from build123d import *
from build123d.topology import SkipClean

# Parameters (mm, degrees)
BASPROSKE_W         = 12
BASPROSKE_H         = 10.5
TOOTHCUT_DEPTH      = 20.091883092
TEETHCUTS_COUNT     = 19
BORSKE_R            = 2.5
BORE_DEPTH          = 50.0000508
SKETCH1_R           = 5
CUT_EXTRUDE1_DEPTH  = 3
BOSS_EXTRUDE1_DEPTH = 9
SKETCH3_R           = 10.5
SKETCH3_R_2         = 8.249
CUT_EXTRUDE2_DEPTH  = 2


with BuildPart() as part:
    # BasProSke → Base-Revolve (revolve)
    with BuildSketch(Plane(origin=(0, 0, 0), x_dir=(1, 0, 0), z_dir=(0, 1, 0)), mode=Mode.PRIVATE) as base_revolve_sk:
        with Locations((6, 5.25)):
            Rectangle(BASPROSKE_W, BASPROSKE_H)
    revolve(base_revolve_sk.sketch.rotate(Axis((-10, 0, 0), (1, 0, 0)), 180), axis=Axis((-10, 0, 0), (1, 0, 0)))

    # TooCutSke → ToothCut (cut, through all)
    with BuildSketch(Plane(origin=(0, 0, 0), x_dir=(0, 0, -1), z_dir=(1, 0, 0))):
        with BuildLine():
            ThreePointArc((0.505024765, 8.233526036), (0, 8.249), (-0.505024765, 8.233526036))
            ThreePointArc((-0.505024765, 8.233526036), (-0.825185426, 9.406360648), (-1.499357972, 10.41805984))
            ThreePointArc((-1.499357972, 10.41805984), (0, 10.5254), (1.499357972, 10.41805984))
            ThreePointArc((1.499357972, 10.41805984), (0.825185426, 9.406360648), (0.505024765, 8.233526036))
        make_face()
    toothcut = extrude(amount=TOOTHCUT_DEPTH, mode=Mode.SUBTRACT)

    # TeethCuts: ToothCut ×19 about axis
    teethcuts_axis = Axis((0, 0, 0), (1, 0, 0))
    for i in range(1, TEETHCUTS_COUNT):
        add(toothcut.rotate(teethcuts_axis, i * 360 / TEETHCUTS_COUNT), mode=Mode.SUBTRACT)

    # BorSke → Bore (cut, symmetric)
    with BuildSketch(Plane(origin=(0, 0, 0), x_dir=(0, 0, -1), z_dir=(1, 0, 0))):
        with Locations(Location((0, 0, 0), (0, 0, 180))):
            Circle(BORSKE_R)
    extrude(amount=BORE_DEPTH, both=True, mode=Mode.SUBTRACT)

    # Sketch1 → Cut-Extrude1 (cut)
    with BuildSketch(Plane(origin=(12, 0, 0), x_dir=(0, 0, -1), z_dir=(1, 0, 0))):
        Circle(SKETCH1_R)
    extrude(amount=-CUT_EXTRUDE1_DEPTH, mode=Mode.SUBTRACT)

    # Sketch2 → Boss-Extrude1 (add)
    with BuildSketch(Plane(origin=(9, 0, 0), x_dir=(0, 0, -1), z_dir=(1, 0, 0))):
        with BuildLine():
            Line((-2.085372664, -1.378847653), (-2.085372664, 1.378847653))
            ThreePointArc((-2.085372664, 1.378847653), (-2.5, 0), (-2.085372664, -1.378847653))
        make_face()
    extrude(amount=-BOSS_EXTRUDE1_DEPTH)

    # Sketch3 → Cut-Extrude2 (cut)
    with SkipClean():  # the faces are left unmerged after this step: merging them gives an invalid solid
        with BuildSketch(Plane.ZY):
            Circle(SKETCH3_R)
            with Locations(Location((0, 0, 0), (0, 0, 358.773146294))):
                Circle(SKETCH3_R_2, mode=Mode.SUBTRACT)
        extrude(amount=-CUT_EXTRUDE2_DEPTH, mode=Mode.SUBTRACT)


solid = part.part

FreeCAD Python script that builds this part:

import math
import FreeCAD as App
import Part
import Sketcher


def add_polygon(sketch, points):
    """Adds a closed chain of lines whose ends are joined by coincident constraints."""
    first, n = sketch.GeometryCount, len(points)
    for a, b in zip(points, points[1:] + points[:1]):
        sketch.addGeometry(Part.LineSegment(App.Vector(*a, 0), App.Vector(*b, 0)), False)
    for i in range(n):
        sketch.addConstraint(Sketcher.Constraint("Coincident", first + i, 2, first + (i + 1) % n, 1))

doc = App.newDocument("Part")
body = doc.addObject("PartDesign::Body", "Body")

# Sketch on XZ plane
sketch1 = body.newObject("Sketcher::SketchObject", "Sketch")
sketch1.AttachmentSupport = (doc.getObject("XZ_Plane"), [""])
sketch1.MapMode = "FlatFace"
add_polygon(sketch1, [(0, -10), (0, 0), (12, 0), (12, -10)])  # lines 0-3
sketch1.addConstraint([
    Sketcher.Constraint("Vertical", 0),
    Sketcher.Constraint("Horizontal", 1),
    Sketcher.Constraint("Vertical", 2),
    Sketcher.Constraint("Horizontal", 3),
    Sketcher.Constraint("Coincident", 0, 2, -1, 1),
    Sketcher.Constraint("DistanceX", 1, 1, 1, 2, 12.0),
    Sketcher.Constraint("DistanceY", 0, 1, 0, 2, 10.5),
])
revolution = body.newObject("PartDesign::Revolution", "Revolution")
revolution.Profile = sketch1
revolution.ReferenceAxis = (sketch1, ["H_Axis"])
revolution.Angle = 360

# Sketch on YZ plane
sketch2 = body.newObject("Sketcher::SketchObject", "Sketch001")
sketch2.AttachmentSupport = (doc.getObject("YZ_Plane"), [""])
sketch2.MapMode = "FlatFace"
sketch2.addGeometry([
    Part.ArcOfCircle(Part.Circle(App.Vector(0, 0, 0), App.Vector(0, 0, 1), 8.2), math.radians(-3.51), math.radians(3.51)),
    Part.ArcOfCircle(Part.Circle(App.Vector(7.8, -4.3, 0), App.Vector(0, 0, 1), 3.8), math.radians(47), math.radians(84)),
    Part.ArcOfCircle(Part.Circle(App.Vector(0, 0, 0), App.Vector(0, 0, 1), 10.5), math.radians(-8.19), math.radians(8.19)),
    Part.ArcOfCircle(Part.Circle(App.Vector(7.8, 4.3, 0), App.Vector(0, 0, 1), 3.8), math.radians(-84), math.radians(-47)),
], False)
sketch2.addConstraint([
    Sketcher.Constraint("Coincident", 0, 1, 1, 2),
    Sketcher.Constraint("Coincident", 1, 1, 2, 1),
    Sketcher.Constraint("Coincident", 2, 2, 3, 2),
    Sketcher.Constraint("Coincident", 3, 1, 0, 2),
    Sketcher.Constraint("Coincident", 0, 3, -1, 1),
    Sketcher.Constraint("Coincident", 2, 3, -1, 1),
    Sketcher.Constraint("Equal", 1, 3),
    Sketcher.Constraint("Symmetric", 1, 3, 3, 3, -1),
    Sketcher.Constraint("Radius", 1, 3.8),
    Sketcher.Constraint("Radius", 0, 8.249),
    Sketcher.Constraint("Radius", 2, 10.5254),
    Sketcher.Constraint("DistanceX", -1, 1, 1, 3, 7.832121),
    Sketcher.Constraint("DistanceX", -1, 1, 1, 1, 10.41806),
])
pocket1 = body.newObject("PartDesign::Pocket", "Pocket")
pocket1.Profile = sketch2
pocket1.Type = "ThroughAll"
pocket1.Reversed = True
doc.recompute()

polarpattern = body.newObject("PartDesign::PolarPattern", "PolarPattern")
polarpattern.Originals = [pocket1]
polarpattern.Axis = (doc.getObject("X_Axis"), [""])
polarpattern.Angle = 360
polarpattern.Occurrences = 19
body.Tip = polarpattern

# Sketch on YZ plane
sketch3 = body.newObject("Sketcher::SketchObject", "Sketch002")
sketch3.AttachmentSupport = (doc.getObject("YZ_Plane"), [""])
sketch3.MapMode = "FlatFace"
sketch3.addGeometry(Part.Circle(App.Vector(0, 0, 0), App.Vector(0, 0, 1), 2.5), False)
sketch3.addConstraint([
    Sketcher.Constraint("Coincident", 0, 3, -1, 1),
    Sketcher.Constraint("Diameter", 0, 5.0),
])
pocket2 = body.newObject("PartDesign::Pocket", "Pocket001")
pocket2.Profile = sketch3
pocket2.Length = 100.000102
pocket2.Midplane = True

# Sketch on YZ plane
sketch4 = body.newObject("Sketcher::SketchObject", "Sketch003")
sketch4.AttachmentSupport = (doc.getObject("YZ_Plane"), [""])
sketch4.MapMode = "FlatFace"
sketch4.AttachmentOffset = App.Placement(App.Vector(0, 0, 12), App.Rotation())
sketch4.addGeometry(Part.Circle(App.Vector(0, 0, 0), App.Vector(0, 0, 1), 5), False)
sketch4.addConstraint([
    Sketcher.Constraint("Coincident", 0, 3, -1, 1),
    Sketcher.Constraint("Diameter", 0, 10.0),
])
pocket3 = body.newObject("PartDesign::Pocket", "Pocket002")
pocket3.Profile = sketch4
pocket3.Length = 3

# Sketch on YZ plane
sketch5 = body.newObject("Sketcher::SketchObject", "Sketch004")
sketch5.AttachmentSupport = (doc.getObject("YZ_Plane"), [""])
sketch5.MapMode = "FlatFace"
sketch5.AttachmentOffset = App.Placement(App.Vector(0, 0, 9), App.Rotation())
sketch5.addGeometry([
    Part.LineSegment(App.Vector(-1.4, 2.1, 0), App.Vector(1.4, 2.1, 0)),
    Part.ArcOfCircle(Part.Circle(App.Vector(0, 0, 0), App.Vector(0, 0, 1), 2.5), math.radians(57), math.radians(123)),
], False)
sketch5.addConstraint([
    Sketcher.Constraint("Coincident", 0, 1, 1, 2),
    Sketcher.Constraint("Coincident", 1, 1, 0, 2),
    Sketcher.Constraint("Horizontal", 0),
    Sketcher.Constraint("Coincident", 1, 3, -1, 1),
    Sketcher.Constraint("Radius", 1, 2.5),
    Sketcher.Constraint("DistanceX", 0, 1, 0, 2, 2.757695),
])
pad1 = body.newObject("PartDesign::Pad", "Pad")
pad1.Profile = sketch5
pad1.Length = 9
pad1.Reversed = True

# Sketch on YZ plane
sketch6 = body.newObject("Sketcher::SketchObject", "Sketch005")
sketch6.AttachmentSupport = (doc.getObject("YZ_Plane"), [""])
sketch6.MapMode = "FlatFace"
sketch6.addGeometry([
    Part.Circle(App.Vector(0, 0, 0), App.Vector(0, 0, 1), 10),
    Part.Circle(App.Vector(0, 0, 0), App.Vector(0, 0, 1), 8),
], False)
sketch6.addConstraint([
    Sketcher.Constraint("Coincident", 0, 3, -1, 1),
    Sketcher.Constraint("Coincident", 1, 3, -1, 1),
    Sketcher.Constraint("Diameter", 0, 21.0),
    Sketcher.Constraint("Diameter", 1, 16.498),
])
pocket4 = body.newObject("PartDesign::Pocket", "Pocket003")
pocket4.Profile = sketch6
pocket4.Length = 2
pocket4.Reversed = True

doc.recompute()
